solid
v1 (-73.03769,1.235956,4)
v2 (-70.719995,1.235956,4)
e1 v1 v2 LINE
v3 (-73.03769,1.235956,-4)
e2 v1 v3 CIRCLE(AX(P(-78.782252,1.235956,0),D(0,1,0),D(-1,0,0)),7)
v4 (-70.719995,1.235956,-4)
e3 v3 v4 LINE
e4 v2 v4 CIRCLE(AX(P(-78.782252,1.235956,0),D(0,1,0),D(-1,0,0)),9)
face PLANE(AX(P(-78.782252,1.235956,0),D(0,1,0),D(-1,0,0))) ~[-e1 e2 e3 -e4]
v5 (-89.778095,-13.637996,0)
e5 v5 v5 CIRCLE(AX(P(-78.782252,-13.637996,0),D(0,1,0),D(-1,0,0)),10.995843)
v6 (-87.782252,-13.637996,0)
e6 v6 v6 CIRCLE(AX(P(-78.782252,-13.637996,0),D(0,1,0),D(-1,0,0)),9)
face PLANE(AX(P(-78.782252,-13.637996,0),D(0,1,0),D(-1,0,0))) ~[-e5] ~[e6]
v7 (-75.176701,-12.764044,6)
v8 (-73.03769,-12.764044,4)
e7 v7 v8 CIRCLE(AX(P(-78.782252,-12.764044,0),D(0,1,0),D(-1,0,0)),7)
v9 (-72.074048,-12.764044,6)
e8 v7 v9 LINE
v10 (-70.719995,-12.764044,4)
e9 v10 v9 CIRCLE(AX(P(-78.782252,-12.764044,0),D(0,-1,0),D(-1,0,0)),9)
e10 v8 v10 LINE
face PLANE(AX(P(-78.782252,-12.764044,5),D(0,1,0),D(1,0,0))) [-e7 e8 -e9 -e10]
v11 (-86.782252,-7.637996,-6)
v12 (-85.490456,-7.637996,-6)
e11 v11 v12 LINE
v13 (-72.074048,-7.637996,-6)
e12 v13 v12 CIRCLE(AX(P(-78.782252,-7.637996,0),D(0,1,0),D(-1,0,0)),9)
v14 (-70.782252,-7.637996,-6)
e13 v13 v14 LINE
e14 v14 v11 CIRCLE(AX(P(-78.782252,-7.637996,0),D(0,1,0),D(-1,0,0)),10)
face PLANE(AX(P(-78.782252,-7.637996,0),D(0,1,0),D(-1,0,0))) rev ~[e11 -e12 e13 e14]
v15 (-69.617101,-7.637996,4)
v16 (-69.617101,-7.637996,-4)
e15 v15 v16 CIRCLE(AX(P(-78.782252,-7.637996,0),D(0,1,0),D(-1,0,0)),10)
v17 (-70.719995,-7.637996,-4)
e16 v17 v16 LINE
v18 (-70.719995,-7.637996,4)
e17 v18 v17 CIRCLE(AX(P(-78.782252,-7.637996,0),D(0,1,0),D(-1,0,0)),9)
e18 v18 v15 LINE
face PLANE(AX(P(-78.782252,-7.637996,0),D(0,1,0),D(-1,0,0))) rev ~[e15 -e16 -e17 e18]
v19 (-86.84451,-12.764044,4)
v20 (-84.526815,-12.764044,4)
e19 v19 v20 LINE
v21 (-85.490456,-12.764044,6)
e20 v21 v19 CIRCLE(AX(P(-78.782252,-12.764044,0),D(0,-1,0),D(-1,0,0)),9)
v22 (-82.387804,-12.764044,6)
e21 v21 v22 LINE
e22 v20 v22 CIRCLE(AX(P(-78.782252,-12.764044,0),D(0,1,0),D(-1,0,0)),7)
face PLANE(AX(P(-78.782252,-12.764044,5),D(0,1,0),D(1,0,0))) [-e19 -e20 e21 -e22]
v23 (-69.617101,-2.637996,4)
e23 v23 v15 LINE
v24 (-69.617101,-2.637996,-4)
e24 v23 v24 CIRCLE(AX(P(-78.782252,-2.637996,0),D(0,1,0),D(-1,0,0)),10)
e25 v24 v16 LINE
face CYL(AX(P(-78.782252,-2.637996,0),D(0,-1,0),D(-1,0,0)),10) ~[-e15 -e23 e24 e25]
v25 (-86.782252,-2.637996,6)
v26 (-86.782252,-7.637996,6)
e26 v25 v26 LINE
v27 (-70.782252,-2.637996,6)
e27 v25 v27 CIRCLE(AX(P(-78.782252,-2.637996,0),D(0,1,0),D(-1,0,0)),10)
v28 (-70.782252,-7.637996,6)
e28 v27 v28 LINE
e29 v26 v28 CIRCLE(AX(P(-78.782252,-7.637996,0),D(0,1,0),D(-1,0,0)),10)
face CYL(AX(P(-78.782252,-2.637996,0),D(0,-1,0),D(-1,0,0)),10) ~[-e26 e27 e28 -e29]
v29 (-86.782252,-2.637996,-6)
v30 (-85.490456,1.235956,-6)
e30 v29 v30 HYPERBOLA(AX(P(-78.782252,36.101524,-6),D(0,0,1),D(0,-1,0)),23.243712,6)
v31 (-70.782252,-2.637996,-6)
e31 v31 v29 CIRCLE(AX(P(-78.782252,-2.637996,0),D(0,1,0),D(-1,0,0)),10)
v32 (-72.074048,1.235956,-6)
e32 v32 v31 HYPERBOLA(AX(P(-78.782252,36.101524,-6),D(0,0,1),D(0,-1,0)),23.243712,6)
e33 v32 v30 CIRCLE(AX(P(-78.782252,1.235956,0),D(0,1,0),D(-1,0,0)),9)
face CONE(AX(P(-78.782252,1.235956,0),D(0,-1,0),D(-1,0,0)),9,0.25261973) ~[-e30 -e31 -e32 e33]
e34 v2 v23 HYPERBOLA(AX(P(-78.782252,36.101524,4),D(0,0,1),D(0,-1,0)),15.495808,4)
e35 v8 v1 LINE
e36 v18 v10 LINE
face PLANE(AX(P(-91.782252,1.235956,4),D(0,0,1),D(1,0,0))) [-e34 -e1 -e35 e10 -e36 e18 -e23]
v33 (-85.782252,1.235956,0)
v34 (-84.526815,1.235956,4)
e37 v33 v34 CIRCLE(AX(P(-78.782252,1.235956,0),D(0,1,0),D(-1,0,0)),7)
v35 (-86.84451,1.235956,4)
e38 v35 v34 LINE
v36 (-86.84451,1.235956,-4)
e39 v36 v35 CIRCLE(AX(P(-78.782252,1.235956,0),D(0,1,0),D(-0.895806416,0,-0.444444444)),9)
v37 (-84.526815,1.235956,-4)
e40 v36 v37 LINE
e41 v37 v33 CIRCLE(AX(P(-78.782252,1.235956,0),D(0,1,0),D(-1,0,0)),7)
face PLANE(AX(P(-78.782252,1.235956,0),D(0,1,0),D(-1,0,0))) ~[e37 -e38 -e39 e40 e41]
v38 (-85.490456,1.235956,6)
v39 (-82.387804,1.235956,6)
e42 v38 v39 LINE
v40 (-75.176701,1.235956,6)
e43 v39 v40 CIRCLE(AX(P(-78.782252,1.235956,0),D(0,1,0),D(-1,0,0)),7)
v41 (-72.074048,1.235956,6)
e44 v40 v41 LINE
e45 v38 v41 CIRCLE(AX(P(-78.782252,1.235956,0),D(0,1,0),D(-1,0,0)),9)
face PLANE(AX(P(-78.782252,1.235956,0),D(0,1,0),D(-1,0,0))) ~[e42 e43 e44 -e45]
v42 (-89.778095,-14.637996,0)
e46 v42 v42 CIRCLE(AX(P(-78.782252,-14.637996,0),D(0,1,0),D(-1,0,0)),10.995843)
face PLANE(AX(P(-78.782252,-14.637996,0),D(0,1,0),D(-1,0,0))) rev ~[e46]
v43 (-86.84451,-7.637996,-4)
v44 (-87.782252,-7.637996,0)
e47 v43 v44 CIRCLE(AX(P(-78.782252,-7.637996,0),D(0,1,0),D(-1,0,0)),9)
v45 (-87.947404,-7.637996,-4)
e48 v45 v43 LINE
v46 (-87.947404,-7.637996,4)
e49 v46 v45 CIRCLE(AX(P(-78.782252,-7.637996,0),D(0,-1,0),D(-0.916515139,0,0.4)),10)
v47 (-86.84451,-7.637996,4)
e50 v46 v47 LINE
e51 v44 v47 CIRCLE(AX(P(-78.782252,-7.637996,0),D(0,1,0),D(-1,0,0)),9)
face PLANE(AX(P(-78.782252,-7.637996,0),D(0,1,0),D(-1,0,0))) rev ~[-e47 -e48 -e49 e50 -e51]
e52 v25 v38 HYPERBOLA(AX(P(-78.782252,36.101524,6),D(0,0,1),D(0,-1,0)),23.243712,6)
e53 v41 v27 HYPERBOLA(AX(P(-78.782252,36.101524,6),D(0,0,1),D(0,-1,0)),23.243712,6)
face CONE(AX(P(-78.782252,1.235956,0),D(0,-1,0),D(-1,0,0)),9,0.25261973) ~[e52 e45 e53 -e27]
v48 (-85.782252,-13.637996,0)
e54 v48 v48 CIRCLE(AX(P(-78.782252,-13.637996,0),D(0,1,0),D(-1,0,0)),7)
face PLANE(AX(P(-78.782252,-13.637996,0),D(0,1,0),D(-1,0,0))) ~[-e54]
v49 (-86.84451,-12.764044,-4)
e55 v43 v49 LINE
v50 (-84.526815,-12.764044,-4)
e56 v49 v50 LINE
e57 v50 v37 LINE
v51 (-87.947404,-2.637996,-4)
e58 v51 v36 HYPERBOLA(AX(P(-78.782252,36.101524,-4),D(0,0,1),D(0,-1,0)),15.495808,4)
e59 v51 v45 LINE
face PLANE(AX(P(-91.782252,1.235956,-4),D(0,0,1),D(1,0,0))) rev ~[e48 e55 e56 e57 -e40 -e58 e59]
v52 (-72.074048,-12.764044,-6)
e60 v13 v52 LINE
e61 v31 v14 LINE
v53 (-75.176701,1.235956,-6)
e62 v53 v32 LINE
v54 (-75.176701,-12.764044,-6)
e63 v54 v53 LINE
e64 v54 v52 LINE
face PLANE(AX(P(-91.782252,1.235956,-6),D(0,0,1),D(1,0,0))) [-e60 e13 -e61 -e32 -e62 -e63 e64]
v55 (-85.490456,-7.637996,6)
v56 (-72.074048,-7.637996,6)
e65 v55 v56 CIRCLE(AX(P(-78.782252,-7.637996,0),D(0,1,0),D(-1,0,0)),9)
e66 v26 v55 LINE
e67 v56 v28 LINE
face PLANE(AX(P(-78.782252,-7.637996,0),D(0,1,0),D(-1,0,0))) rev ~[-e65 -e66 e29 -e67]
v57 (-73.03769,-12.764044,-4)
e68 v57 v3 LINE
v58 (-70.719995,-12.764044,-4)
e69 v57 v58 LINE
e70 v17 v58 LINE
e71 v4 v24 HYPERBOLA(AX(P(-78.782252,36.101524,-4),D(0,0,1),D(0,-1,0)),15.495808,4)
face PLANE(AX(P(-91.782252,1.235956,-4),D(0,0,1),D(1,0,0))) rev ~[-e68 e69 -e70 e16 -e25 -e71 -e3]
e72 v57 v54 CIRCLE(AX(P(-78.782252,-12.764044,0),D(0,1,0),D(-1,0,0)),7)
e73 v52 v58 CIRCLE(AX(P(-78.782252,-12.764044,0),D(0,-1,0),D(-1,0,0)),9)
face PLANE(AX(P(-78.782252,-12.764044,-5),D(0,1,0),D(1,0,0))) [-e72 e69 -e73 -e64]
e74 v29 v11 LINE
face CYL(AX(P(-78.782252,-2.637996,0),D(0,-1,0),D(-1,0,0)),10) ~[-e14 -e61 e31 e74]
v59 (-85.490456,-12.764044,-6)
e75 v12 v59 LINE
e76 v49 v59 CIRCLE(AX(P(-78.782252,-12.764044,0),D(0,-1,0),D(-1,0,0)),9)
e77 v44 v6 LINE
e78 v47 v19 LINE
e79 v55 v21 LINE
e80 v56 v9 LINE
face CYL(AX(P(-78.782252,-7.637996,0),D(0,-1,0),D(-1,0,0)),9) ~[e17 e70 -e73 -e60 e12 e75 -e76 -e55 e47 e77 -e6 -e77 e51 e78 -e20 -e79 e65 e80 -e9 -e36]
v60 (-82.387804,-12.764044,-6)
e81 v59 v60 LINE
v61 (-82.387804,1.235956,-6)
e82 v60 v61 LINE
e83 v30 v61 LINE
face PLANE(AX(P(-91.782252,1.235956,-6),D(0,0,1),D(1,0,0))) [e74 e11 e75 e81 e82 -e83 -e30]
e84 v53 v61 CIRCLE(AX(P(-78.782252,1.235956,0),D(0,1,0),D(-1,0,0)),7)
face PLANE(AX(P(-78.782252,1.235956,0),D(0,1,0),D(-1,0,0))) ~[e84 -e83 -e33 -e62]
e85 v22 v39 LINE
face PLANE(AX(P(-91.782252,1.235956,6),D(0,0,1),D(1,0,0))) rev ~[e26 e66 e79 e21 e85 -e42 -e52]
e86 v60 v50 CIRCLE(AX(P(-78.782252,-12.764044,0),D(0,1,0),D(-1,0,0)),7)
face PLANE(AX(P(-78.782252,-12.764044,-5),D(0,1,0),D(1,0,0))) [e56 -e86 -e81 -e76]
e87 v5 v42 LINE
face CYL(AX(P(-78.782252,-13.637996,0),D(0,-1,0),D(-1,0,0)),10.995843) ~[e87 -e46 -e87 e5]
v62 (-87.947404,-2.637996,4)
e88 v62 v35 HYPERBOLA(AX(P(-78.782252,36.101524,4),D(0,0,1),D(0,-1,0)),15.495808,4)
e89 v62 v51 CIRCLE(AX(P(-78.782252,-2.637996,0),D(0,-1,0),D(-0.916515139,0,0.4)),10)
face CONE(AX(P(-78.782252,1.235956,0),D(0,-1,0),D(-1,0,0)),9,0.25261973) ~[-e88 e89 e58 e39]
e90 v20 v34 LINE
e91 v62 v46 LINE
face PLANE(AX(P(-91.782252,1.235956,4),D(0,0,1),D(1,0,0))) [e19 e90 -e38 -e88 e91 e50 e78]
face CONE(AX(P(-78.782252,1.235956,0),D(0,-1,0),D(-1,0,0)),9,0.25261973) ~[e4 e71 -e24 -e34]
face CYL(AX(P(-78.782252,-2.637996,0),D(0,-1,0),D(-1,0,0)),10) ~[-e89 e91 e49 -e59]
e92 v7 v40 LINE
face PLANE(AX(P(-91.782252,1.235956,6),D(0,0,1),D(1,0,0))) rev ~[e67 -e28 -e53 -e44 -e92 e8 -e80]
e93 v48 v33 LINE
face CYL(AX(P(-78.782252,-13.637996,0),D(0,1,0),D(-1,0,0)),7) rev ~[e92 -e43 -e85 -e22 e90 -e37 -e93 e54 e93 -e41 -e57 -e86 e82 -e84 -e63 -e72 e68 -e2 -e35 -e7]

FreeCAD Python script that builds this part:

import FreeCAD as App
import Part
import Sketcher
from FreeCAD import Vector
Q = App.Units.Quantity

doc = App.newDocument("Part")
body = doc.addObject("PartDesign::Body", "Body")

# Sketch on XY plane
sketch1 = body.newObject("Sketcher::SketchObject", "Sketch")
sketch1.AttachmentSupport = (doc.getObject("XY_Plane"), [""])
sketch1.MapMode = "FlatFace"
sketch1.addGeometry([
    Part.LineSegment(Vector(-89.8, -14.6, 0), Vector(-78.8, -14.6, 0)),  # 0
    Part.LineSegment(Vector(-78.8, -14.6, 0), Vector(-78.8, -13.6, 0)),  # 1
    Part.LineSegment(Vector(-78.8, -13.6, 0), Vector(-85.8, -13.6, 0)),  # 2
    Part.LineSegment(Vector(-85.8, -13.6, 0), Vector(-85.8, 1.2, 0)),  # 3
    Part.LineSegment(Vector(-85.8, 1.2, 0), Vector(-87.8, 1.2, 0)),  # 4
    Part.LineSegment(Vector(-87.8, 1.2, 0), Vector(-88.8, -2.6, 0)),  # 5
    Part.LineSegment(Vector(-88.8, -2.6, 0), Vector(-88.8, -7.6, 0)),  # 6
    Part.LineSegment(Vector(-88.8, -7.6, 0), Vector(-87.8, -7.6, 0)),  # 7
    Part.LineSegment(Vector(-87.8, -7.6, 0), Vector(-87.8, -13.6, 0)),  # 8
    Part.LineSegment(Vector(-87.8, -13.6, 0), Vector(-89.8, -13.6, 0)),  # 9
    Part.LineSegment(Vector(-89.8, -13.6, 0), Vector(-89.8, -14.6, 0)),  # 10
], False)
sketch1.addGeometry(Part.LineSegment(Vector(-78.8, -14.6, 0), Vector(-78.8, 1.2, 0)), True)  # axis
sketch1.addConstraint([
    Sketcher.Constraint("Coincident", 0, 2, 1, 1),
    Sketcher.Constraint("Coincident", 1, 2, 2, 1),
    Sketcher.Constraint("Coincident", 2, 2, 3, 1),
    Sketcher.Constraint("Coincident", 3, 2, 4, 1),
    Sketcher.Constraint("Coincident", 4, 2, 5, 1),
    Sketcher.Constraint("Coincident", 5, 2, 6, 1),
    Sketcher.Constraint("Coincident", 6, 2, 7, 1),
    Sketcher.Constraint("Coincident", 7, 2, 8, 1),
    Sketcher.Constraint("Coincident", 8, 2, 9, 1),
    Sketcher.Constraint("Coincident", 9, 2, 10, 1),
    Sketcher.Constraint("Coincident", 10, 2, 0, 1),
    Sketcher.Constraint("Horizontal", 0),
    Sketcher.Constraint("Vertical", 1),
    Sketcher.Constraint("Horizontal", 2),
    Sketcher.Constraint("Vertical", 3),
    Sketcher.Constraint("Horizontal", 4),
    Sketcher.Constraint("Vertical", 6),
    Sketcher.Constraint("Horizontal", 7),
    Sketcher.Constraint("Vertical", 8),
    Sketcher.Constraint("Horizontal", 9),
    Sketcher.Constraint("Vertical", 10),
    Sketcher.Constraint("Vertical", 11),
    Sketcher.Constraint("Coincident", 11, 1, 0, 2),
    Sketcher.Constraint("Horizontal", 2, 2, 8, 2),
    Sketcher.Constraint("Horizontal", 4, 2, 11, 2),
    Sketcher.Constraint("Vertical", 4, 2, 7, 2),
    Sketcher.Constraint("Equal", 7, 1),
    Sketcher.Constraint("DistanceX", 2, 2, 2, 1, Q("7 mm")),
    Sketcher.Constraint("DistanceX", 4, 2, 4, 1, Q("2 mm")),
    Sketcher.Constraint("DistanceX", 7, 1, 7, 2, Q("1 mm")),
    Sketcher.Constraint("DistanceY", 6, 2, 6, 1, Q("5 mm")),
    Sketcher.Constraint("DistanceY", 8, 2, 8, 1, Q("6 mm")),
    Sketcher.Constraint("DistanceY", 3, 1, 3, 2, Q("14.873952 mm")),
    Sketcher.Constraint("DistanceX", 0, 1, 0, 2, Q("10.995843 mm")),
    Sketcher.Constraint("DistanceX", 0, 2, -1, 1, Q("78.782252 mm")),
    Sketcher.Constraint("DistanceY", 0, 2, -1, 1, Q("14.637996 mm")),
])
revolution = body.newObject("PartDesign::Revolution", "Revolution")
revolution.Profile = sketch1
revolution.ReferenceAxis = (sketch1, ["Axis0"])
revolution.Angle = 360

# Sketch on XZ plane
sketch2 = body.newObject("Sketcher::SketchObject", "Sketch001")
sketch2.AttachmentSupport = (doc.getObject("XZ_Plane"), [""])
sketch2.MapMode = "FlatFace"
sketch2.AttachmentOffset = App.Placement(Vector(0, 0, -1.235956), App.Rotation())
sketch2.addGeometry([
    Part.LineSegment(Vector(-91.8, 4, 0), Vector(-91.8, 6, 0)),  # 0
    Part.LineSegment(Vector(-91.8, 6, 0), Vector(-65.8, 6, 0)),  # 1
    Part.LineSegment(Vector(-65.8, 6, 0), Vector(-65.8, 4, 0)),  # 2
    Part.LineSegment(Vector(-65.8, 4, 0), Vector(-91.8, 4, 0)),  # 3
    Part.LineSegment(Vector(-91.8, -6, 0), Vector(-91.8, -4, 0)),  # 4
    Part.LineSegment(Vector(-91.8, -4, 0), Vector(-65.8, -4, 0)),  # 5
    Part.LineSegment(Vector(-65.8, -4, 0), Vector(-65.8, -6, 0)),  # 6
    Part.LineSegment(Vector(-65.8, -6, 0), Vector(-91.8, -6, 0)),  # 7
], False)
sketch2.addConstraint([
    Sketcher.Constraint("Coincident", 0, 2, 1, 1),
    Sketcher.Constraint("Coincident", 1, 2, 2, 1),
    Sketcher.Constraint("Coincident", 2, 2, 3, 1),
    Sketcher.Constraint("Coincident", 3, 2, 0, 1),
    Sketcher.Constraint("Coincident", 4, 2, 5, 1),
    Sketcher.Constraint("Coincident", 5, 2, 6, 1),
    Sketcher.Constraint("Coincident", 6, 2, 7, 1),
    Sketcher.Constraint("Coincident", 7, 2, 4, 1),
    Sketcher.Constraint("Vertical", 0),
    Sketcher.Constraint("Horizontal", 1),
    Sketcher.Constraint("Vertical", 2),
    Sketcher.Constraint("Horizontal", 3),
    Sketcher.Constraint("Vertical", 4),
    Sketcher.Constraint("Horizontal", 5),
    Sketcher.Constraint("Vertical", 6),
    Sketcher.Constraint("Horizontal", 7),
    Sketcher.Constraint("Symmetric", 3, 2, 4, 2, -1),
    Sketcher.Constraint("Symmetric", 1, 2, 6, 2, -1),
    Sketcher.Constraint("DistanceX", 1, 1, 1, 2, Q("26 mm")),
    Sketcher.Constraint("DistanceY", 0, 1, 0, 2, Q("2 mm")),
    Sketcher.Constraint("DistanceY", -1, 1, 0, 2, Q("6 mm")),
    Sketcher.Constraint("DistanceX", 0, 2, -1, 1, Q("91.782252 mm")),
])
pocket1 = body.newObject("PartDesign::Pocket", "Pocket")
pocket1.Profile = sketch2
pocket1.Length = 14
pocket1.Reversed = True

doc.recompute()
